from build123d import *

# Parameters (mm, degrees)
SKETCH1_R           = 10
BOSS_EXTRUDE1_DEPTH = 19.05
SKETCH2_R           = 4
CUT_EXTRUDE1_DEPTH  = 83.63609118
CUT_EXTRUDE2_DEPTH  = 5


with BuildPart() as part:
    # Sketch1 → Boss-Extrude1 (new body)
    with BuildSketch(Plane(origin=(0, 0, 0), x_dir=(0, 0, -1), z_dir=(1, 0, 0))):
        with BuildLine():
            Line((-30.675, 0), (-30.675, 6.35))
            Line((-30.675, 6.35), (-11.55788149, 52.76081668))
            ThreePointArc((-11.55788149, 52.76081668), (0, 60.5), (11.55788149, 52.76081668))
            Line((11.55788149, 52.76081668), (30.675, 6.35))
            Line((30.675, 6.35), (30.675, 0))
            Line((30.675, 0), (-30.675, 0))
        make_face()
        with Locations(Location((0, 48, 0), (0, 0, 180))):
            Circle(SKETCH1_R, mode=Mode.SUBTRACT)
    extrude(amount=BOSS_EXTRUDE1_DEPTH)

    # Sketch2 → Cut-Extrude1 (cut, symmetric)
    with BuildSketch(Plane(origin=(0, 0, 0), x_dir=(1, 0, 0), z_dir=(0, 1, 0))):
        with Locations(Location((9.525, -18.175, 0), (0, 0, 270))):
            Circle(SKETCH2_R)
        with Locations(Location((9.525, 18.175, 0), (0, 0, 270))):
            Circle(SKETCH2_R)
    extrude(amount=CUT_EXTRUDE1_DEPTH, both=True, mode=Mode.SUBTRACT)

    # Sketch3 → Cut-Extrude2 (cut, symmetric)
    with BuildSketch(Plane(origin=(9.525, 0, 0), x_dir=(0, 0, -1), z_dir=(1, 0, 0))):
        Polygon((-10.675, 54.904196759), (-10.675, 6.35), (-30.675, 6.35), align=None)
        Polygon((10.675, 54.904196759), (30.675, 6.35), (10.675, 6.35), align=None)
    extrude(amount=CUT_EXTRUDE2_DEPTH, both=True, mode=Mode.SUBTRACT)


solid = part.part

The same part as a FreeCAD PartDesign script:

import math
import FreeCAD as App
import Part
import Sketcher
from FreeCAD import Vector


def add_polygon(sketch, points):
    """Adds a closed chain of lines whose ends are joined by coincident constraints."""
    first, n = sketch.GeometryCount, len(points)
    for a, b in zip(points, points[1:] + points[:1]):
        sketch.addGeometry(Part.LineSegment(App.Vector(*a, 0), App.Vector(*b, 0)), False)
    for i in range(n):
        sketch.addConstraint(Sketcher.Constraint("Coincident", first + i, 2, first + (i + 1) % n, 1))

doc = App.newDocument("Part")
body = doc.addObject("PartDesign::Body", "Body")

sketch1 = body.newObject("Sketcher::SketchObject", "Sketch")
sketch1.AttachmentSupport = (doc.getObject("YZ_Plane"), [""])
sketch1.MapMode = "FlatFace"
sketch1.addGeometry([
    Part.LineSegment(Vector(6.35, 30.675, 0), Vector(0, 30.675, 0)),
    Part.LineSegment(Vector(0, 30.675, 0), Vector(0, -30.675, 0)),
    Part.LineSegment(Vector(0, -30.675, 0), Vector(6.35, -30.675, 0)),
    Part.LineSegment(Vector(6.35, -30.675, 0), Vector(52.760817, -11.557881, 0)),
    Part.ArcOfCircle(Part.Circle(Vector(48, 0, 0), Vector(0, 0, 1), 12.5), math.radians(-67.612706), math.radians(67.612706)),
    Part.LineSegment(Vector(52.760817, 11.557881, 0), Vector(6.35, 30.675, 0)),
    Part.Circle(Vector(48, 0, 0), Vector(0, 0, 1), 10),
], False)
sketch1.addConstraint([
    Sketcher.Constraint("Coincident", 0, 2, 1, 1),
    Sketcher.Constraint("Coincident", 1, 2, 2, 1),
    Sketcher.Constraint("Coincident", 2, 2, 3, 1),
    Sketcher.Constraint("Tangent", 3, 2, 4, 1),
    Sketcher.Constraint("Tangent", 4, 2, 5, 1),
    Sketcher.Constraint("Coincident", 5, 2, 0, 1),
    Sketcher.Constraint("Horizontal", 0),
    Sketcher.Constraint("Vertical", 1),
    Sketcher.Constraint("Horizontal", 2),
    Sketcher.Constraint("Coincident", 6, 3, 4, 3),
    Sketcher.Constraint("Symmetric", 0, 2, 1, 2, -1, 1),
    Sketcher.Constraint("Symmetric", 3, 2, 4, 2, -1),
    Sketcher.Constraint("Diameter", 6, 20.0),
    Sketcher.Constraint("Radius", 4, 12.5),
    Sketcher.Constraint("DistanceX", -1, 1, 4, 3, 48.0),
    Sketcher.Constraint("DistanceX", 0, 2, 0, 1, 6.35),
    Sketcher.Constraint("DistanceY", 1, 2, 1, 1, 61.35),
])
pad1 = body.newObject("PartDesign::Pad", "Pad")
pad1.Profile = sketch1
pad1.Length = 19.05

sketch2 = body.newObject("Sketcher::SketchObject", "Sketch001")
sketch2.AttachmentSupport = (doc.getObject("XZ_Plane"), [""])
sketch2.MapMode = "FlatFace"
sketch2.addGeometry([
    Part.Circle(Vector(9.525, 18.175, 0), Vector(0, 0, 1), 4),
    Part.Circle(Vector(9.525, -18.175, 0), Vector(0, 0, 1), 4),
], False)
sketch2.addConstraint([
    Sketcher.Constraint("Equal", 0, 1),
    Sketcher.Constraint("Symmetric", 0, 3, 1, 3, -1),
    Sketcher.Constraint("Diameter", 0, 8.0),
    Sketcher.Constraint("DistanceY", 1, 3, 0, 3, 36.35),
    Sketcher.Constraint("DistanceX", -1, 1, 0, 3, 9.525),
])
pocket1 = body.newObject("PartDesign::Pocket", "Pocket")
pocket1.Profile = sketch2
pocket1.Length = 167.272182
pocket1.Midplane = True

sketch3 = body.newObject("Sketcher::SketchObject", "Sketch002")
sketch3.AttachmentSupport = (doc.getObject("YZ_Plane"), [""])
sketch3.MapMode = "FlatFace"
sketch3.AttachmentOffset = App.Placement(Vector(0, 0, 9.525), App.Rotation())
add_polygon(sketch3, [(6.35, 10.675), (54.904197, 10.675), (6.35, 30.675)])
add_polygon(sketch3, [(6.35, -30.675), (54.904197, -10.675), (6.35, -10.675)])
sketch3.addConstraint([
    Sketcher.Constraint("Horizontal", 0),
    Sketcher.Constraint("Vertical", 2),
    Sketcher.Constraint("Horizontal", 4),
    Sketcher.Constraint("Vertical", 5),
    Sketcher.Constraint("Symmetric", 0, 2, 3, 2, -1),
    Sketcher.Constraint("Symmetric", 1, 2, 5, 2, -1),
    Sketcher.Constraint("DistanceY", 2, 2, 2, 1, 20.0),
    Sketcher.Constraint("DistanceX", -1, 1, 1, 2, 6.35),
    Sketcher.Constraint("DistanceY", 3, 2, 0, 2, 21.35),
    Sketcher.Constraint("Distance", 1, 52.511999),
])
pocket2 = body.newObject("PartDesign::Pocket", "Pocket001")
pocket2.Profile = sketch3
pocket2.Length = 10
pocket2.Midplane = True

doc.recompute()
